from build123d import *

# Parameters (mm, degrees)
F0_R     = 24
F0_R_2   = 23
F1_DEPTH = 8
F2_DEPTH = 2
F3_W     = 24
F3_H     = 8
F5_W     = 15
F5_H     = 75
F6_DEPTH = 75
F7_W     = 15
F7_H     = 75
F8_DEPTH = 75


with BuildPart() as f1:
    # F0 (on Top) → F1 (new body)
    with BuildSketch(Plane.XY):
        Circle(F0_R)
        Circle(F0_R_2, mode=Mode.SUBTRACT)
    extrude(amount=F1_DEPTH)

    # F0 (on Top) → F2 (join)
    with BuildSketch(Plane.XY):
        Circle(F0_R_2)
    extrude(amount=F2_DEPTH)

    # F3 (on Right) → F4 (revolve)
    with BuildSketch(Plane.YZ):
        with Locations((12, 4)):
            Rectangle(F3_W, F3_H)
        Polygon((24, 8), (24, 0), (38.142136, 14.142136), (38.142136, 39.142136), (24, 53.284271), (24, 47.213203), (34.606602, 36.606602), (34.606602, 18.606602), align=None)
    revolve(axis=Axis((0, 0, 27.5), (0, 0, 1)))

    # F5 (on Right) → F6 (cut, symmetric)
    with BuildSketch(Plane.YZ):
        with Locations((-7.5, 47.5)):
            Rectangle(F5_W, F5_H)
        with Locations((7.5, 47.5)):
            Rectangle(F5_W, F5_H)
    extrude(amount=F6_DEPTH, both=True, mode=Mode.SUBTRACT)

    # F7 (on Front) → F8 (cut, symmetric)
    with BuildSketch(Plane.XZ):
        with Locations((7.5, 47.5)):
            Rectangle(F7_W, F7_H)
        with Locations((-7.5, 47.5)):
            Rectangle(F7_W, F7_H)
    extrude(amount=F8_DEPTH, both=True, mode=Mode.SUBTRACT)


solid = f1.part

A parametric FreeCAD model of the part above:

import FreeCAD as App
import Part
import Sketcher

V = App.Vector
Q = App.Units.Quantity

doc = App.newDocument("Part")
body = doc.addObject("PartDesign::Body", "Body")

# Sketch on XY plane
sketch1 = doc.addObject("Sketcher::SketchObject", "Sketch")
body.addObject(sketch1)
sketch1.AttachmentSupport = (doc.XY_Plane, [""])
sketch1.MapMode = "FlatFace"
sketch1.addGeometry(Part.Circle(V(0, 0, 0), V(0, 0, 1), 24), False)
sketch1.addGeometry(Part.Circle(V(0, 0, 0), V(0, 0, 1), 23), False)
sketch1.addConstraint(Sketcher.Constraint("Coincident", 0, 3, -1, 1))
sketch1.addConstraint(Sketcher.Constraint("Coincident", 1, 3, -1, 1))
sketch1.addConstraint(Sketcher.Constraint("Diameter", 0, Q("48 mm")))
sketch1.addConstraint(Sketcher.Constraint("Diameter", 1, Q("46 mm")))
pad1 = doc.addObject("PartDesign::Pad", "Pad")
body.addObject(pad1)
pad1.Profile = sketch1
pad1.Length = 8

# Sketch on XY plane
sketch2 = doc.addObject("Sketcher::SketchObject", "Sketch001")
body.addObject(sketch2)
sketch2.AttachmentSupport = (doc.XY_Plane, [""])
sketch2.MapMode = "FlatFace"
sketch2.addGeometry(Part.Circle(V(0, 0, 0), V(0, 0, 1), 23), False)
sketch2.addConstraint(Sketcher.Constraint("Coincident", 0, 3, -1, 1))
sketch2.addConstraint(Sketcher.Constraint("Diameter", 0, Q("46 mm")))
pad2 = doc.addObject("PartDesign::Pad", "Pad001")
body.addObject(pad2)
pad2.Profile = sketch2
pad2.Length = 2

# Sketch on YZ plane
sketch3 = doc.addObject("Sketcher::SketchObject", "Sketch002")
body.addObject(sketch3)
sketch3.AttachmentSupport = (doc.YZ_Plane, [""])
sketch3.MapMode = "FlatFace"
sketch3.addGeometry(Part.LineSegment(V(0, 8, 0), V(0, 0, 0)), False)
sketch3.addGeometry(Part.LineSegment(V(0, 0, 0), V(24, 0, 0)), False)
sketch3.addGeometry(Part.LineSegment(V(24, 0, 0), V(38, 14, 0)), False)
sketch3.addGeometry(Part.LineSegment(V(38, 14, 0), V(38, 39, 0)), False)
sketch3.addGeometry(Part.LineSegment(V(38, 39, 0), V(24, 53, 0)), False)
sketch3.addGeometry(Part.LineSegment(V(24, 53, 0), V(24, 47, 0)), False)
sketch3.addGeometry(Part.LineSegment(V(24, 47, 0), V(35, 37, 0)), False)
sketch3.addGeometry(Part.LineSegment(V(35, 37, 0), V(35, 19, 0)), False)
sketch3.addGeometry(Part.LineSegment(V(35, 19, 0), V(24, 8, 0)), False)
sketch3.addGeometry(Part.LineSegment(V(24, 8, 0), V(0, 8, 0)), False)
sketch3.addConstraint(Sketcher.Constraint("Coincident", 0, 2, 1, 1))
sketch3.addConstraint(Sketcher.Constraint("Coincident", 1, 2, 2, 1))
sketch3.addConstraint(Sketcher.Constraint("Coincident", 2, 2, 3, 1))
sketch3.addConstraint(Sketcher.Constraint("Coincident", 3, 2, 4, 1))
sketch3.addConstraint(Sketcher.Constraint("Coincident", 4, 2, 5, 1))
sketch3.addConstraint(Sketcher.Constraint("Coincident", 5, 2, 6, 1))
sketch3.addConstraint(Sketcher.Constraint("Coincident", 6, 2, 7, 1))
sketch3.addConstraint(Sketcher.Constraint("Coincident", 7, 2, 8, 1))
sketch3.addConstraint(Sketcher.Constraint("Coincident", 8, 2, 9, 1))
sketch3.addConstraint(Sketcher.Constraint("Coincident", 9, 2, 0, 1))
sketch3.addConstraint(Sketcher.Constraint("Vertical", 0))
sketch3.addConstraint(Sketcher.Constraint("Horizontal", 1))
sketch3.addConstraint(Sketcher.Constraint("Vertical", 3))
sketch3.addConstraint(Sketcher.Constraint("Vertical", 5))
sketch3.addConstraint(Sketcher.Constraint("Vertical", 7))
sketch3.addConstraint(Sketcher.Constraint("Horizontal", 9))
sketch3.addConstraint(Sketcher.Constraint("Coincident", 0, 2, -1, 1))
sketch3.addConstraint(Sketcher.Constraint("Perpendicular", 2, 4))
sketch3.addConstraint(Sketcher.Constraint("Parallel", 4, 6))
sketch3.addConstraint(Sketcher.Constraint("Perpendicular", 6, 8))
sketch3.addConstraint(Sketcher.Constraint("Vertical", 1, 2, 4, 2))
sketch3.addConstraint(Sketcher.Constraint("Vertical", 5, 2, 8, 2))
sketch3.addConstraint(Sketcher.Constraint("Equal", 2, 4))
sketch3.addConstraint(Sketcher.Constraint("DistanceX", 1, 1, 1, 2, Q("24 mm")))
sketch3.addConstraint(Sketcher.Constraint("DistanceY", 0, 2, 0, 1, Q("8 mm")))
sketch3.addConstraint(Sketcher.Constraint("DistanceY", 3, 1, 3, 2, Q("25 mm")))
sketch3.addConstraint(Sketcher.Constraint("DistanceY", 7, 2, 7, 1, Q("18 mm")))
sketch3.addConstraint(Sketcher.Constraint("Distance", 2, Q("20.000001 mm")))
sketch3.addConstraint(Sketcher.Constraint("Distance", 6, Q("15 mm")))
revolution = doc.addObject("PartDesign::Revolution", "Revolution")
body.addObject(revolution)
revolution.Profile = sketch3
revolution.ReferenceAxis = (sketch3, ["V_Axis"])
revolution.Angle = 360

# Sketch on YZ plane
sketch4 = doc.addObject("Sketcher::SketchObject", "Sketch003")
body.addObject(sketch4)
sketch4.AttachmentSupport = (doc.YZ_Plane, [""])
sketch4.MapMode = "FlatFace"
sketch4.addGeometry(Part.LineSegment(V(-15, 85, 0), V(-15, 10, 0)), False)
sketch4.addGeometry(Part.LineSegment(V(-15, 10, 0), V(15, 10, 0)), False)
sketch4.addGeometry(Part.LineSegment(V(15, 10, 0), V(15, 85, 0)), False)
sketch4.addGeometry(Part.LineSegment(V(15, 85, 0), V(-15, 85, 0)), False)
sketch4.addConstraint(Sketcher.Constraint("Coincident", 0, 2, 1, 1))
sketch4.addConstraint(Sketcher.Constraint("Coincident", 1, 2, 2, 1))
sketch4.addConstraint(Sketcher.Constraint("Coincident", 2, 2, 3, 1))
sketch4.addConstraint(Sketcher.Constraint("Coincident", 3, 2, 0, 1))
sketch4.addConstraint(Sketcher.Constraint("Vertical", 0))
sketch4.addConstraint(Sketcher.Constraint("Horizontal", 1))
sketch4.addConstraint(Sketcher.Constraint("Vertical", 2))
sketch4.addConstraint(Sketcher.Constraint("Horizontal", 3))
sketch4.addConstraint(Sketcher.Constraint("DistanceX", 1, 1, 1, 2, Q("30 mm")))
sketch4.addConstraint(Sketcher.Constraint("DistanceY", 0, 2, 0, 1, Q("75 mm")))
sketch4.addConstraint(Sketcher.Constraint("DistanceX", 0, 2, -1, 1, Q("15 mm")))
sketch4.addConstraint(Sketcher.Constraint("DistanceY", -1, 1, 0, 2, Q("10 mm")))
pocket1 = doc.addObject("PartDesign::Pocket", "Pocket")
body.addObject(pocket1)
pocket1.Profile = sketch4
pocket1.Length = 150
pocket1.Midplane = True

# Sketch on XZ plane
sketch5 = doc.addObject("Sketcher::SketchObject", "Sketch004")
body.addObject(sketch5)
sketch5.AttachmentSupport = (doc.XZ_Plane, [""])
sketch5.MapMode = "FlatFace"
sketch5.addGeometry(Part.LineSegment(V(15, 10, 0), V(15, 85, 0)), False)
sketch5.addGeometry(Part.LineSegment(V(15, 85, 0), V(-15, 85, 0)), False)
sketch5.addGeometry(Part.LineSegment(V(-15, 85, 0), V(-15, 10, 0)), False)
sketch5.addGeometry(Part.LineSegment(V(-15, 10, 0), V(15, 10, 0)), False)
sketch5.addConstraint(Sketcher.Constraint("Coincident", 0, 2, 1, 1))
sketch5.addConstraint(Sketcher.Constraint("Coincident", 1, 2, 2, 1))
sketch5.addConstraint(Sketcher.Constraint("Coincident", 2, 2, 3, 1))
sketch5.addConstraint(Sketcher.Constraint("Coincident", 3, 2, 0, 1))
sketch5.addConstraint(Sketcher.Constraint("Vertical", 0))
sketch5.addConstraint(Sketcher.Constraint("Horizontal", 1))
sketch5.addConstraint(Sketcher.Constraint("Vertical", 2))
sketch5.addConstraint(Sketcher.Constraint("Horizontal", 3))
sketch5.addConstraint(Sketcher.Constraint("DistanceX", 1, 2, 1, 1, Q("30 mm")))
sketch5.addConstraint(Sketcher.Constraint("DistanceY", 0, 1, 0, 2, Q("75 mm")))
sketch5.addConstraint(Sketcher.Constraint("DistanceX", -1, 1, 0, 2, Q("15 mm")))
sketch5.addConstraint(Sketcher.Constraint("DistanceY", -1, 1, 0, 2, Q("85 mm")))
pocket2 = doc.addObject("PartDesign::Pocket", "Pocket001")
body.addObject(pocket2)
pocket2.Profile = sketch5
pocket2.Length = 150
pocket2.Midplane = True

doc.recompute()
